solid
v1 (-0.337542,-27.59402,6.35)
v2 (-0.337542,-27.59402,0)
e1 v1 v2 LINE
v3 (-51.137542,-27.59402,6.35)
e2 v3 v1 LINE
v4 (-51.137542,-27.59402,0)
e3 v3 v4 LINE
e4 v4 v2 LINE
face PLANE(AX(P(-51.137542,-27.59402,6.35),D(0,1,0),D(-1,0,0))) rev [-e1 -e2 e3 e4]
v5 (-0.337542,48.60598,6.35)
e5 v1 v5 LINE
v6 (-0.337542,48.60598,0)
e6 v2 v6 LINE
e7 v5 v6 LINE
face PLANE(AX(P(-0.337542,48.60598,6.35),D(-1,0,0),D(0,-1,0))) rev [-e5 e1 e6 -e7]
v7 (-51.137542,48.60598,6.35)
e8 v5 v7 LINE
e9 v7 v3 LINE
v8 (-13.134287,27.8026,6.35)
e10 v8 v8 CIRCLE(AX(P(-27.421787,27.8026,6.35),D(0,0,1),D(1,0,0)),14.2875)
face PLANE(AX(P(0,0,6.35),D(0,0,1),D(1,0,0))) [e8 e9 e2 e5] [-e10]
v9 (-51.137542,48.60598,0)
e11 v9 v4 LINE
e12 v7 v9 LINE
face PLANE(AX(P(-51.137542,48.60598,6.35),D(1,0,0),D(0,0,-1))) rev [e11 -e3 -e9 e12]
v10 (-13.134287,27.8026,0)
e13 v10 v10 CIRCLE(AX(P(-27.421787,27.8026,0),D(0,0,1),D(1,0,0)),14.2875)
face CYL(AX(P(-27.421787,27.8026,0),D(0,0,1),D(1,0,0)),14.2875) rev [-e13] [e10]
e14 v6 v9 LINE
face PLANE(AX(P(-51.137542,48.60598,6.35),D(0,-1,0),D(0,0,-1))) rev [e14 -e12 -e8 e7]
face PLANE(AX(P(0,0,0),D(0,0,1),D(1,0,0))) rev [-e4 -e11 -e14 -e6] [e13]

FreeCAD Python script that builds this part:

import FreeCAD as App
import Part
import Sketcher

V = App.Vector
Q = App.Units.Quantity


def add_polygon(sketch, points):
    """Adds a closed chain of lines whose ends are joined by coincident constraints."""
    first, n = sketch.GeometryCount, len(points)
    for a, b in zip(points, points[1:] + points[:1]):
        sketch.addGeometry(Part.LineSegment(App.Vector(*a, 0), App.Vector(*b, 0)), False)
    for i in range(n):
        sketch.addConstraint(Sketcher.Constraint("Coincident", first + i, 2, first + (i + 1) % n, 1))

doc = App.newDocument("Part")
params = doc.addObject("Spreadsheet::Sheet", "Params")
for row, (alias, value) in enumerate([
    ("sketch1_width", "2 in"),
    ("sketch1_height", "3 in"),
    ("pad1_length", "0.25 in"),
    ("sketch2_diameter", "1.125 in"),
    ("pocket1_length", "0.25 in"),
], start=1):
    params.set(f"A{row}", alias)
    params.set(f"B{row}", "=" + value)
    params.setAlias(f"B{row}", alias)

body = doc.addObject("PartDesign::Body", "Body")

# Sketch on XY plane
sketch1 = body.newObject("Sketcher::SketchObject", "Sketch")
sketch1.AttachmentSupport = (doc.getObject("XY_Plane"), [""])
sketch1.MapMode = "FlatFace"
add_polygon(sketch1, [(-51.137542, 48.60598), (-51.137542, -27.59402), (-0.337542, -27.59402), (-0.337542, 48.60598)])  # lines 0-3
sketch1.addConstraint([
    Sketcher.Constraint("Vertical", 0),
    Sketcher.Constraint("Horizontal", 1),
    Sketcher.Constraint("Vertical", 2),
    Sketcher.Constraint("Horizontal", 3),
    Sketcher.Constraint("DistanceX", 1, 1, 1, 2, Q("2 in")),
    Sketcher.Constraint("DistanceY", 0, 2, 0, 1, Q("3 in")),
    Sketcher.Constraint("DistanceX", 0, 2, -1, 1, 51.137542),
    Sketcher.Constraint("DistanceY", 0, 2, -1, 1, 27.59402),
])
sketch1.setExpression("Constraints[8]", "Params.sketch1_width")
sketch1.setExpression("Constraints[9]", "Params.sketch1_height")
pad1 = body.newObject("PartDesign::Pad", "Pad")
pad1.Profile = sketch1
pad1.setExpression("Length", "Params.pad1_length")

# Sketch on XY plane
sketch2 = body.newObject("Sketcher::SketchObject", "Sketch001")
sketch2.AttachmentSupport = (doc.getObject("XY_Plane"), [""])
sketch2.MapMode = "FlatFace"
sketch2.AttachmentOffset = App.Placement(V(0, 0, 0.25 * 25.4), App.Rotation())
sketch2.addGeometry(Part.Circle(V(-27.421787, 27.8026, 0), V(0, 0, 1), 14.2875), False)
sketch2.addConstraint([
    Sketcher.Constraint("Diameter", 0, Q("1.125 in")),
    Sketcher.Constraint("DistanceY", -1, 1, 0, 3, 27.8026),
    Sketcher.Constraint("DistanceX", 0, 3, -1, 1, 27.421787),
])
sketch2.setExpression("Constraints[0]", "Params.sketch2_diameter")
pocket1 = body.newObject("PartDesign::Pocket", "Pocket")
pocket1.Profile = sketch2
pocket1.setExpression("Length", "Params.pocket1_length")

doc.recompute()
